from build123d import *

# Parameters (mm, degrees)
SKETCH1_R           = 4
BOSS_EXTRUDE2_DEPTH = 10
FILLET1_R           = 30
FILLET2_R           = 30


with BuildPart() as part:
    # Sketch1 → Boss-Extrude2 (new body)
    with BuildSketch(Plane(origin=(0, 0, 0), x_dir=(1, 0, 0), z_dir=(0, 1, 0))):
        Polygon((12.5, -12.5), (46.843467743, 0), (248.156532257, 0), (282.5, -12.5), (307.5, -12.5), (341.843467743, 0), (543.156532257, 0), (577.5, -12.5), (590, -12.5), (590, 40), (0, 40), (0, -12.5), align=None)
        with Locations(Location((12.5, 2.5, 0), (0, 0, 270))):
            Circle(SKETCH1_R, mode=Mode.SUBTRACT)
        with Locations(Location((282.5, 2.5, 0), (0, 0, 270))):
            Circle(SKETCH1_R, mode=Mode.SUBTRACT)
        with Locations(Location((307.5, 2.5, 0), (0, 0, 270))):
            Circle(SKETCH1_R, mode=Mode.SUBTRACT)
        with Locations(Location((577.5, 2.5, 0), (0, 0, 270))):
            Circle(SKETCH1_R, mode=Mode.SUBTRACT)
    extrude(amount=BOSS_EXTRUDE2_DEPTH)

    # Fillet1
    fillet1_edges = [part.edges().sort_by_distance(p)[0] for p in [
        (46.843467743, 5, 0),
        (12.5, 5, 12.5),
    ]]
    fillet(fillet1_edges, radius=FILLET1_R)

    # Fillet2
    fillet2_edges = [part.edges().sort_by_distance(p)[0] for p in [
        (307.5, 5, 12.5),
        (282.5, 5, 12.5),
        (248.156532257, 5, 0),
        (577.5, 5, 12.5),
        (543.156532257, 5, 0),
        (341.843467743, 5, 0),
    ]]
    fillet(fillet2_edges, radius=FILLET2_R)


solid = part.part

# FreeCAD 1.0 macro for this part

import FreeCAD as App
import Part
import Sketcher
Q = App.Units.Quantity


def edges_at(feature, points):
    """Names of the edges that pass closest to the given points."""
    edges = feature.Shape.Edges
    near = lambda p: min(range(len(edges)), key=lambda i: edges[i].distToShape(Part.Vertex(*p))[0])
    return sorted({f"Edge{near(p) + 1}" for p in points})

doc = App.newDocument("Part")
body = doc.addObject("PartDesign::Body", "Body")

# Sketch on XZ plane
sketch1 = body.newObject("Sketcher::SketchObject", "Sketch")
sketch1.AttachmentSupport = (doc.getObject("XZ_Plane"), [""])
sketch1.MapMode = "FlatFace"
sketch1.addGeometry(Part.LineSegment(App.Vector(12.5, 12.5, 0), App.Vector(46.8, 0, 0)), False)
sketch1.addGeometry(Part.LineSegment(App.Vector(46.8, 0, 0), App.Vector(248.2, 0, 0)), False)
sketch1.addGeometry(Part.LineSegment(App.Vector(248.2, 0, 0), App.Vector(282.5, 12.5, 0)), False)
sketch1.addGeometry(Part.LineSegment(App.Vector(282.5, 12.5, 0), App.Vector(307.5, 12.5, 0)), False)
sketch1.addGeometry(Part.LineSegment(App.Vector(307.5, 12.5, 0), App.Vector(341.8, 0, 0)), False)
sketch1.addGeometry(Part.LineSegment(App.Vector(341.8, 0, 0), App.Vector(543.2, 0, 0)), False)
sketch1.addGeometry(Part.LineSegment(App.Vector(543.2, 0, 0), App.Vector(577.5, 12.5, 0)), False)
sketch1.addGeometry(Part.LineSegment(App.Vector(577.5, 12.5, 0), App.Vector(590, 12.5, 0)), False)
sketch1.addGeometry(Part.LineSegment(App.Vector(590, 12.5, 0), App.Vector(590, -40, 0)), False)
sketch1.addGeometry(Part.LineSegment(App.Vector(590, -40, 0), App.Vector(0, -40, 0)), False)
sketch1.addGeometry(Part.LineSegment(App.Vector(0, -40, 0), App.Vector(0, 12.5, 0)), False)
sketch1.addGeometry(Part.LineSegment(App.Vector(0, 12.5, 0), App.Vector(12.5, 12.5, 0)), False)
sketch1.addGeometry(Part.Circle(App.Vector(12.5, -2.5, 0), App.Vector(0, 0, 1), 4), False)
sketch1.addGeometry(Part.Circle(App.Vector(282.5, -2.5, 0), App.Vector(0, 0, 1), 4), False)
sketch1.addGeometry(Part.Circle(App.Vector(307.5, -2.5, 0), App.Vector(0, 0, 1), 4), False)
sketch1.addGeometry(Part.Circle(App.Vector(577.5, -2.5, 0), App.Vector(0, 0, 1), 4), False)
sketch1.addConstraint(Sketcher.Constraint("Coincident", 0, 2, 1, 1))
sketch1.addConstraint(Sketcher.Constraint("Coincident", 1, 2, 2, 1))
sketch1.addConstraint(Sketcher.Constraint("Coincident", 2, 2, 3, 1))
sketch1.addConstraint(Sketcher.Constraint("Coincident", 3, 2, 4, 1))
sketch1.addConstraint(Sketcher.Constraint("Coincident", 4, 2, 5, 1))
sketch1.addConstraint(Sketcher.Constraint("Coincident", 5, 2, 6, 1))
sketch1.addConstraint(Sketcher.Constraint("Coincident", 6, 2, 7, 1))
sketch1.addConstraint(Sketcher.Constraint("Coincident", 7, 2, 8, 1))
sketch1.addConstraint(Sketcher.Constraint("Coincident", 8, 2, 9, 1))
sketch1.addConstraint(Sketcher.Constraint("Coincident", 9, 2, 10, 1))
sketch1.addConstraint(Sketcher.Constraint("Coincident", 10, 2, 11, 1))
sketch1.addConstraint(Sketcher.Constraint("Coincident", 11, 2, 0, 1))
sketch1.addConstraint(Sketcher.Constraint("Horizontal", 1))
sketch1.addConstraint(Sketcher.Constraint("Horizontal", 3))
sketch1.addConstraint(Sketcher.Constraint("Horizontal", 5))
sketch1.addConstraint(Sketcher.Constraint("Horizontal", 7))
sketch1.addConstraint(Sketcher.Constraint("Vertical", 8))
sketch1.addConstraint(Sketcher.Constraint("Horizontal", 9))
sketch1.addConstraint(Sketcher.Constraint("Vertical", 10))
sketch1.addConstraint(Sketcher.Constraint("Horizontal", 11))
sketch1.addConstraint(Sketcher.Constraint("Equal", 12, 13))
sketch1.addConstraint(Sketcher.Constraint("Equal", 13, 14))
sketch1.addConstraint(Sketcher.Constraint("Equal", 14, 15))
sketch1.addConstraint(Sketcher.Constraint("PointOnObject", 0, 2, -1))
sketch1.addConstraint(Sketcher.Constraint("PointOnObject", 4, 2, -1))
sketch1.addConstraint(Sketcher.Constraint("PointOnObject", 9, 2, -2))
sketch1.addConstraint(Sketcher.Constraint("Parallel", 0, 4))
sketch1.addConstraint(Sketcher.Constraint("Parallel", 2, 6))
sketch1.addConstraint(Sketcher.Constraint("Horizontal", 12, 3, 13, 3))
sketch1.addConstraint(Sketcher.Constraint("Horizontal", 13, 3, 14, 3))
sketch1.addConstraint(Sketcher.Constraint("Horizontal", 14, 3, 15, 3))
sketch1.addConstraint(Sketcher.Constraint("Horizontal", 3, 2, 6, 2))
sketch1.addConstraint(Sketcher.Constraint("Horizontal", 7, 2, 10, 2))
sketch1.addConstraint(Sketcher.Constraint("Vertical", 13, 3, 2, 2))
sketch1.addConstraint(Sketcher.Constraint("Vertical", 14, 3, 3, 2))
sketch1.addConstraint(Sketcher.Constraint("Vertical", 15, 3, 6, 2))
sketch1.addConstraint(Sketcher.Constraint("Vertical", 12, 3, 11, 2))
sketch1.addConstraint(Sketcher.Constraint("Equal", 1, 5))
sketch1.addConstraint(Sketcher.Constraint("Equal", 7, 11))
sketch1.addConstraint(Sketcher.Constraint("Equal", 0, 2))
sketch1.addConstraint(Sketcher.Constraint("Diameter", 12, 8.0))
sketch1.addConstraint(Sketcher.Constraint("DistanceX", 3, 1, 3, 2, 25.0))
sketch1.addConstraint(Sketcher.Constraint("DistanceX", 9, 2, 9, 1, 590.0))
sketch1.addConstraint(Sketcher.Constraint("Angle", 0, Q("-20 deg")))
sketch1.addConstraint(Sketcher.Constraint("DistanceX", 7, 1, 7, 2, 12.5))
sketch1.addConstraint(Sketcher.Constraint("DistanceY", 8, 2, 8, 1, 52.5))
sketch1.addConstraint(Sketcher.Constraint("DistanceY", 8, 2, -1, 1, 40.0))
sketch1.addConstraint(Sketcher.Constraint("DistanceY", 13, 3, 2, 2, 15.0))
pad1 = body.newObject("PartDesign::Pad", "Pad")
pad1.Profile = sketch1
pad1.Length = 10
pad1.Reversed = True
doc.recompute()

fillet = body.newObject("PartDesign::Fillet", "Fillet")
fillet.Base = (pad1, edges_at(pad1, [(46.843, 5, 0), (12.5, 5, 12.5)]))
fillet.Radius = 30
doc.recompute()

fillet2 = body.newObject("PartDesign::Fillet", "Fillet001")
fillet2.Base = (fillet, edges_at(fillet, [
    (307.5, 5, 12.5),
    (282.5, 5, 12.5),
    (248.157, 5, 0),
    (577.5, 5, 12.5),
    (543.157, 5, 0),
    (341.843, 5, 0),
]))
fillet2.Radius = 30

doc.recompute()
